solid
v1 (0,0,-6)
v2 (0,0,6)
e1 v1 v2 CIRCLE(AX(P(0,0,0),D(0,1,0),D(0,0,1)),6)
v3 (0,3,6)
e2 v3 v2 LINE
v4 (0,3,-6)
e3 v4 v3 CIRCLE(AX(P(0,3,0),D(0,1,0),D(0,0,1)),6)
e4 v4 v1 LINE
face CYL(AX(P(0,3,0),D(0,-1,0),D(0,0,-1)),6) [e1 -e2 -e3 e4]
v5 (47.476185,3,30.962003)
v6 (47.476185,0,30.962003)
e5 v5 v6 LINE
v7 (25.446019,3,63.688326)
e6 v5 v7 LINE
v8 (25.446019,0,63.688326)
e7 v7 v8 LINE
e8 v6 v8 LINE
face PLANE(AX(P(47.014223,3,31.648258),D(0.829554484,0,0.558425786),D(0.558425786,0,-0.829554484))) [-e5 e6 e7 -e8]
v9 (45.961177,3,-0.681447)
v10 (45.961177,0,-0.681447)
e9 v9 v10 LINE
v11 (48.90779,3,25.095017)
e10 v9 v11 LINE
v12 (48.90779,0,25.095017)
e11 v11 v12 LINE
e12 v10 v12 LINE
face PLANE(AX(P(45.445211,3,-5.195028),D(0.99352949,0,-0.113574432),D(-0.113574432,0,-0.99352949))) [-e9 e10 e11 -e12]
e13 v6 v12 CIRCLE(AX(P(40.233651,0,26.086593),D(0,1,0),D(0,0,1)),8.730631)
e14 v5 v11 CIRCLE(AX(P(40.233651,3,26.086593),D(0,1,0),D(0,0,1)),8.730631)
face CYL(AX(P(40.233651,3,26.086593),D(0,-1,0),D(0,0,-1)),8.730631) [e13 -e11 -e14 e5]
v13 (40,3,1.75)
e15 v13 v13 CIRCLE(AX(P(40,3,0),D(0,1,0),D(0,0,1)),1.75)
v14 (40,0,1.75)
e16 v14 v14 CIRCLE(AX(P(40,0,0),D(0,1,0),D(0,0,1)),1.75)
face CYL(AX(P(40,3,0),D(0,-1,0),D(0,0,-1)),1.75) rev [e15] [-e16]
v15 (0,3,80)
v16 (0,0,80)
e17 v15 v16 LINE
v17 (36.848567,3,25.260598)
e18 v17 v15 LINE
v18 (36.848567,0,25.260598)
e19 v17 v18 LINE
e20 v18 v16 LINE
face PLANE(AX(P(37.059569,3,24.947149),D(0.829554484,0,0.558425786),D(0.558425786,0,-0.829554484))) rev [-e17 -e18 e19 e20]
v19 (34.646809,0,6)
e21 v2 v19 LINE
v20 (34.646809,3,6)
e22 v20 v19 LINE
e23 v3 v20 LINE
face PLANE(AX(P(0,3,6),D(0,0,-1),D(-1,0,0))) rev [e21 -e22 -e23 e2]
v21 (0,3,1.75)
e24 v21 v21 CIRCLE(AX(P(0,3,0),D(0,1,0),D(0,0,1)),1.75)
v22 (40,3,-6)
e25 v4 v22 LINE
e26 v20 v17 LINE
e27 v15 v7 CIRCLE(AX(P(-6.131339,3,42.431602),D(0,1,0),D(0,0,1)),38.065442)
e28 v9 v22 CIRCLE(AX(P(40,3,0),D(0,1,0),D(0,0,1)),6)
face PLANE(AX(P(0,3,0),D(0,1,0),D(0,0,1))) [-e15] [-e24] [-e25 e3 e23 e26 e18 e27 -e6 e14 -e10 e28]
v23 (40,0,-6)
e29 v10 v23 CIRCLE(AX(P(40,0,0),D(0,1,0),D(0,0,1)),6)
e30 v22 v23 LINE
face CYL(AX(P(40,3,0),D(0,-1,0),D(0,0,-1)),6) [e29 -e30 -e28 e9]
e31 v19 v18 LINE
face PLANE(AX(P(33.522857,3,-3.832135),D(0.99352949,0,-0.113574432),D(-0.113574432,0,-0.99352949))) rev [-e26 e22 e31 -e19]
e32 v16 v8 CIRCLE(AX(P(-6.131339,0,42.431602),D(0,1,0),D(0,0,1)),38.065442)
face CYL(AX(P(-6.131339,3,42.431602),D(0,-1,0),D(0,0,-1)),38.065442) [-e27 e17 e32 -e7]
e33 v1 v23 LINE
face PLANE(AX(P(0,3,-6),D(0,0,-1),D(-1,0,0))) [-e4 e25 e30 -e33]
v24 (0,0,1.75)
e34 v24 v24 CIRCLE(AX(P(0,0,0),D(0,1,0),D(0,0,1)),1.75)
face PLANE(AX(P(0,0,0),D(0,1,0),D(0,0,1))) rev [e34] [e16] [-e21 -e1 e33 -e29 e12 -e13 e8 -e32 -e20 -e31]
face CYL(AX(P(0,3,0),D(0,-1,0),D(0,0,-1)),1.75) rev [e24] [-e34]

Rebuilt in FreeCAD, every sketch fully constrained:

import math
import FreeCAD as App
import Part
import Sketcher

doc = App.newDocument("Part")
body = doc.addObject("PartDesign::Body", "Body")

# Sketch on XZ plane
sketch1 = body.newObject("Sketcher::SketchObject", "Sketch")
sketch1.AttachmentSupport = (doc.getObject("XZ_Plane"), [""])
sketch1.MapMode = "FlatFace"
sketch1.addGeometry(Part.LineSegment(App.Vector(36.848567, 25.260598, 0), App.Vector(0, 80, 0)), False)
sketch1.addGeometry(Part.ArcOfCircle(Part.Circle(App.Vector(-6.131339, 42.431602, 0), App.Vector(0, 0, 1), 38.065442), math.radians(33.947), math.radians(80.730781)), False)
sketch1.addGeometry(Part.LineSegment(App.Vector(25.446019, 63.688326, 0), App.Vector(47.476185, 30.962003, 0)), False)
sketch1.addGeometry(Part.ArcOfCircle(Part.Circle(App.Vector(40.233651, 26.086593, 0), App.Vector(0, 0, 1), 8.730631), math.radians(-6.521407), math.radians(33.947)), False)
sketch1.addGeometry(Part.LineSegment(App.Vector(48.90779, 25.095017, 0), App.Vector(45.961177, -0.681447, 0)), False)
sketch1.addGeometry(Part.ArcOfCircle(Part.Circle(App.Vector(40, 0, 0), App.Vector(0, 0, 1), 6), math.radians(-90), math.radians(-6.521407)), False)
sketch1.addGeometry(Part.LineSegment(App.Vector(40, -6, 0), App.Vector(0, -6, 0)), False)
sketch1.addGeometry(Part.ArcOfCircle(Part.Circle(App.Vector(0, 0, 0), App.Vector(0, 0, 1), 6), math.radians(90), math.radians(270)), False)
sketch1.addGeometry(Part.LineSegment(App.Vector(0, 6, 0), App.Vector(34.646809, 6, 0)), False)
sketch1.addGeometry(Part.LineSegment(App.Vector(34.646809, 6, 0), App.Vector(36.848567, 25.260598, 0)), False)
sketch1.addGeometry(Part.Circle(App.Vector(0, 0, 0), App.Vector(0, 0, 1), 1.75), False)
sketch1.addGeometry(Part.Circle(App.Vector(40, 0, 0), App.Vector(0, 0, 1), 1.75), False)
sketch1.addConstraint(Sketcher.Constraint("Coincident", 0, 2, 1, 2))
sketch1.addConstraint(Sketcher.Constraint("Tangent", 1, 1, 2, 1))
sketch1.addConstraint(Sketcher.Constraint("Tangent", 2, 2, 3, 2))
sketch1.addConstraint(Sketcher.Constraint("Tangent", 3, 1, 4, 1))
sketch1.addConstraint(Sketcher.Constraint("Tangent", 4, 2, 5, 2))
sketch1.addConstraint(Sketcher.Constraint("Tangent", 5, 1, 6, 1))
sketch1.addConstraint(Sketcher.Constraint("Tangent", 6, 2, 7, 2))
sketch1.addConstraint(Sketcher.Constraint("Tangent", 7, 1, 8, 1))
sketch1.addConstraint(Sketcher.Constraint("Coincident", 8, 2, 9, 1))
sketch1.addConstraint(Sketcher.Constraint("Coincident", 9, 2, 0, 1))
sketch1.addConstraint(Sketcher.Constraint("Horizontal", 6))
sketch1.addConstraint(Sketcher.Constraint("Horizontal", 8))
sketch1.addConstraint(Sketcher.Constraint("Coincident", 7, 3, -1, 1))
sketch1.addConstraint(Sketcher.Constraint("Coincident", 10, 3, -1, 1))
sketch1.addConstraint(Sketcher.Constraint("Coincident", 11, 3, 5, 3))
sketch1.addConstraint(Sketcher.Constraint("Equal", 5, 7))
sketch1.addConstraint(Sketcher.Constraint("Equal", 10, 11))
sketch1.addConstraint(Sketcher.Constraint("PointOnObject", 0, 2, -2))
sketch1.addConstraint(Sketcher.Constraint("Parallel", 0, 2))
sketch1.addConstraint(Sketcher.Constraint("Parallel", 4, 9))
sketch1.addConstraint(Sketcher.Constraint("Radius", 5, 6.0))
sketch1.addConstraint(Sketcher.Constraint("Diameter", 10, 3.5))
sketch1.addConstraint(Sketcher.Constraint("DistanceX", 6, 2, 6, 1, 40.0))
sketch1.addConstraint(Sketcher.Constraint("DistanceY", -1, 1, 0, 2, 80.0))
sketch1.addConstraint(Sketcher.Constraint("Radius", 1, 38.065442))
sketch1.addConstraint(Sketcher.Constraint("Radius", 3, 8.730631))
sketch1.addConstraint(Sketcher.Constraint("DistanceX", 8, 1, 8, 2, 34.646809))
sketch1.addConstraint(Sketcher.Constraint("DistanceY", -1, 1, 1, 3, 42.431602))
sketch1.addConstraint(Sketcher.Constraint("DistanceY", 2, 2, 1, 3, 11.469599))
sketch1.addConstraint(Sketcher.Constraint("Distance", 2, 39.450481))
pad1 = body.newObject("PartDesign::Pad", "Pad")
pad1.Profile = sketch1
pad1.Length = 3
pad1.Reversed = True

doc.recompute()
